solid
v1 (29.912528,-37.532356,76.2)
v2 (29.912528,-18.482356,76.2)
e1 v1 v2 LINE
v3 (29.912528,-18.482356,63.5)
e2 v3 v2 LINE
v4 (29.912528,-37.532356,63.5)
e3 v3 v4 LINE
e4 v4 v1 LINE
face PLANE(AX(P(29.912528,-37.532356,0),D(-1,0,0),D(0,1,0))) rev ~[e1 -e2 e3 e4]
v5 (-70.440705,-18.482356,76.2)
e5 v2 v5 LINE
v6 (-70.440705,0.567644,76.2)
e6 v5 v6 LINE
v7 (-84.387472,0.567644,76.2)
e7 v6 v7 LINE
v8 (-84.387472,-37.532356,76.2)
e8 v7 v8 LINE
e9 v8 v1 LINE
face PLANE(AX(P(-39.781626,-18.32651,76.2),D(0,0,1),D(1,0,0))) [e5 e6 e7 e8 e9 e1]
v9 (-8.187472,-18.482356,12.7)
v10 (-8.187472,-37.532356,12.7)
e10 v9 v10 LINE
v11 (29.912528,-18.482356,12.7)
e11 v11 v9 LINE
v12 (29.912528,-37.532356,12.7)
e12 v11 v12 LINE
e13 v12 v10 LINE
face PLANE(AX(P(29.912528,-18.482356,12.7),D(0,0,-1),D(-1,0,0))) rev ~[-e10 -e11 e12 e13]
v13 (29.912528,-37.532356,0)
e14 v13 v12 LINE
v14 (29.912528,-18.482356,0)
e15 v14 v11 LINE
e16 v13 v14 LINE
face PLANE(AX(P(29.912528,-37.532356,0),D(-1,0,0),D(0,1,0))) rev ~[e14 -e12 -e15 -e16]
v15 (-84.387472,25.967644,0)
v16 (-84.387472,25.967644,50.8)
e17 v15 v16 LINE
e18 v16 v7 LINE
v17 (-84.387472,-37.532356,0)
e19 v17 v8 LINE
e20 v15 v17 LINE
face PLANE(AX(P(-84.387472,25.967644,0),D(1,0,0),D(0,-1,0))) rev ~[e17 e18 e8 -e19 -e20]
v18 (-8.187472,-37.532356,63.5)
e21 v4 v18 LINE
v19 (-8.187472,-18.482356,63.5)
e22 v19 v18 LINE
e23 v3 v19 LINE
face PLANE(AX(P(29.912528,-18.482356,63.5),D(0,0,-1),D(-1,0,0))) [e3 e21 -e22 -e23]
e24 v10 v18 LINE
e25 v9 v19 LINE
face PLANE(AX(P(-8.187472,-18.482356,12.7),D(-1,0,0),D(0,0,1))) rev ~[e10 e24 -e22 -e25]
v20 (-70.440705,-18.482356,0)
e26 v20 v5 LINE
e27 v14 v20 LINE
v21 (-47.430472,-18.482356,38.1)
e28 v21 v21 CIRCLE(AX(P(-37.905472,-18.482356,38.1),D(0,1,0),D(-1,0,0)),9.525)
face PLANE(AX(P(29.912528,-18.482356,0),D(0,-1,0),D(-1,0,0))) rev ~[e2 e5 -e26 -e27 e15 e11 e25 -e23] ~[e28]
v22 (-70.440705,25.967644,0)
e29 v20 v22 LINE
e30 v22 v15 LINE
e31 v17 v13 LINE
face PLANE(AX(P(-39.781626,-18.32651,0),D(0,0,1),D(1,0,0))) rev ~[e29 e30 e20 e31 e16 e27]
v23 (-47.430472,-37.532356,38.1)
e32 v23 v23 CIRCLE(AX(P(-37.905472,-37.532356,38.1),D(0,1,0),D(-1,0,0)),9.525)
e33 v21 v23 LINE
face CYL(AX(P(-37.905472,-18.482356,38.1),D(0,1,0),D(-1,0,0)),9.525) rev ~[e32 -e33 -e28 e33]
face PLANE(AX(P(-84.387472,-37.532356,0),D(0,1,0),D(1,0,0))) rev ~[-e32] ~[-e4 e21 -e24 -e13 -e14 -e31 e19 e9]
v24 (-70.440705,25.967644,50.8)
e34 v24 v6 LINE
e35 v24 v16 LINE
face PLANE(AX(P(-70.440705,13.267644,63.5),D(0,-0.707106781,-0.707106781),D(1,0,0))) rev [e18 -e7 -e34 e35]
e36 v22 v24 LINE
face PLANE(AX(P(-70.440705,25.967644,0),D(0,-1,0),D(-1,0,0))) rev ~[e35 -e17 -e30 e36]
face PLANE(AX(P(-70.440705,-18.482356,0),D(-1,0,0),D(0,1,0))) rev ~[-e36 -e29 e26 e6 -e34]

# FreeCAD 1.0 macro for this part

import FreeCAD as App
import Part
import Sketcher
Q = App.Units.Quantity


def edges_at(feature, points):
    """Names of the edges that pass closest to the given points."""
    edges = feature.Shape.Edges
    near = lambda p: min(range(len(edges)), key=lambda i: edges[i].distToShape(Part.Vertex(*p))[0])
    return sorted({f"Edge{near(p) + 1}" for p in points})

doc = App.newDocument("Part")
body = doc.addObject("PartDesign::Body", "Body")

sketch1 = doc.addObject("Sketcher::SketchObject", "Sketch")
body.addObject(sketch1)
sketch1.AttachmentSupport = (doc.XY_Plane, [""])
sketch1.MapMode = "FlatFace"
sketch1.addGeometry([
    Part.LineSegment(App.Vector(-70.440705, 25.967644, 0), App.Vector(-84.387472, 25.967644, 0)),
    Part.LineSegment(App.Vector(-84.387472, 25.967644, 0), App.Vector(-84.387472, -37.532356, 0)),
    Part.LineSegment(App.Vector(-84.387472, -37.532356, 0), App.Vector(29.912528, -37.532356, 0)),
    Part.LineSegment(App.Vector(29.912528, -37.532356, 0), App.Vector(29.912528, -18.482356, 0)),
    Part.LineSegment(App.Vector(29.912528, -18.482356, 0), App.Vector(-70.440705, -18.482356, 0)),
    Part.LineSegment(App.Vector(-70.440705, -18.482356, 0), App.Vector(-70.440705, 25.967644, 0)),
], False)
sketch1.addConstraint([
    Sketcher.Constraint("Coincident", 0, 2, 1, 1),
    Sketcher.Constraint("Coincident", 1, 2, 2, 1),
    Sketcher.Constraint("Coincident", 2, 2, 3, 1),
    Sketcher.Constraint("Coincident", 3, 2, 4, 1),
    Sketcher.Constraint("Coincident", 4, 2, 5, 1),
    Sketcher.Constraint("Coincident", 5, 2, 0, 1),
    Sketcher.Constraint("Horizontal", 0),
    Sketcher.Constraint("Vertical", 1),
    Sketcher.Constraint("Horizontal", 2),
    Sketcher.Constraint("Vertical", 3),
    Sketcher.Constraint("Horizontal", 4),
    Sketcher.Constraint("Vertical", 5),
    Sketcher.Constraint("DistanceX", 2, 1, 2, 2, Q("4.5 in")),
    Sketcher.Constraint("DistanceY", 1, 2, 1, 1, Q("2.5 in")),
    Sketcher.Constraint("DistanceY", 3, 1, 3, 2, Q("0.75 in")),
    Sketcher.Constraint("DistanceX", 0, 2, 0, 1, 13.946767),
    Sketcher.Constraint("DistanceX", 0, 2, -1, 1, 84.387472),
    Sketcher.Constraint("DistanceY", -1, 1, 0, 2, 25.967644),
])
pad1 = doc.addObject("PartDesign::Pad", "Pad")
body.addObject(pad1)
pad1.Profile = sketch1
pad1.Length = Q("3 in")
doc.recompute()

chamfer = doc.addObject("PartDesign::Chamfer", "Chamfer")
body.addObject(chamfer)
chamfer.Base = (pad1, edges_at(pad1, [(-77.414, 25.968, 76.2)]))
chamfer.Size = Q("1 in")

sketch2 = doc.addObject("Sketcher::SketchObject", "Sketch001")
body.addObject(sketch2)
sketch2.AttachmentSupport = (doc.XZ_Plane, [""])
sketch2.MapMode = "FlatFace"
sketch2.AttachmentOffset = App.Placement(App.Vector(0, 0, 18.482356), App.Rotation())
sketch2.addGeometry(Part.Circle(App.Vector(-37.905472, 38.1, 0), App.Vector(0, 0, 1), 9.525), False)
sketch2.addConstraint([
    Sketcher.Constraint("Diameter", 0, Q("0.75 in")),
    Sketcher.Constraint("DistanceY", -1, 1, 0, 3, Q("1.5 in")),
    Sketcher.Constraint("DistanceX", 0, 3, -1, 1, 37.905472),
])
pocket1 = doc.addObject("PartDesign::Pocket", "Pocket")
body.addObject(pocket1)
pocket1.Profile = sketch2
pocket1.Type = "ThroughAll"
pocket1.Reversed = True

sketch3 = doc.addObject("Sketcher::SketchObject", "Sketch002")
body.addObject(sketch3)
sketch3.AttachmentSupport = (doc.XZ_Plane, [""])
sketch3.MapMode = "FlatFace"
sketch3.AttachmentOffset = App.Placement(App.Vector(0, 0, 18.482356), App.Rotation())
sketch3.addGeometry([
    Part.LineSegment(App.Vector(29.912528, 63.5, 0), App.Vector(29.912528, 12.7, 0)),
    Part.LineSegment(App.Vector(29.912528, 12.7, 0), App.Vector(-8.187472, 12.7, 0)),
    Part.LineSegment(App.Vector(-8.187472, 12.7, 0), App.Vector(-8.187472, 63.5, 0)),
    Part.LineSegment(App.Vector(-8.187472, 63.5, 0), App.Vector(29.912528, 63.5, 0)),
], False)
sketch3.addConstraint([
    Sketcher.Constraint("Coincident", 0, 2, 1, 1),
    Sketcher.Constraint("Coincident", 1, 2, 2, 1),
    Sketcher.Constraint("Coincident", 2, 2, 3, 1),
    Sketcher.Constraint("Coincident", 3, 2, 0, 1),
    Sketcher.Constraint("Vertical", 0),
    Sketcher.Constraint("Horizontal", 1),
    Sketcher.Constraint("Vertical", 2),
    Sketcher.Constraint("Horizontal", 3),
    Sketcher.Constraint("DistanceY", 0, 2, 0, 1, Q("2 in")),
    Sketcher.Constraint("DistanceX", 1, 2, 1, 1, Q("1.5 in")),
    Sketcher.Constraint("DistanceY", -1, 1, 0, 2, Q("0.5 in")),
    Sketcher.Constraint("DistanceX", -1, 1, 0, 2, 29.912528),
])
pocket2 = doc.addObject("PartDesign::Pocket", "Pocket001")
body.addObject(pocket2)
pocket2.Profile = sketch3
pocket2.Type = "ThroughAll"
pocket2.Reversed = True

doc.recompute()
